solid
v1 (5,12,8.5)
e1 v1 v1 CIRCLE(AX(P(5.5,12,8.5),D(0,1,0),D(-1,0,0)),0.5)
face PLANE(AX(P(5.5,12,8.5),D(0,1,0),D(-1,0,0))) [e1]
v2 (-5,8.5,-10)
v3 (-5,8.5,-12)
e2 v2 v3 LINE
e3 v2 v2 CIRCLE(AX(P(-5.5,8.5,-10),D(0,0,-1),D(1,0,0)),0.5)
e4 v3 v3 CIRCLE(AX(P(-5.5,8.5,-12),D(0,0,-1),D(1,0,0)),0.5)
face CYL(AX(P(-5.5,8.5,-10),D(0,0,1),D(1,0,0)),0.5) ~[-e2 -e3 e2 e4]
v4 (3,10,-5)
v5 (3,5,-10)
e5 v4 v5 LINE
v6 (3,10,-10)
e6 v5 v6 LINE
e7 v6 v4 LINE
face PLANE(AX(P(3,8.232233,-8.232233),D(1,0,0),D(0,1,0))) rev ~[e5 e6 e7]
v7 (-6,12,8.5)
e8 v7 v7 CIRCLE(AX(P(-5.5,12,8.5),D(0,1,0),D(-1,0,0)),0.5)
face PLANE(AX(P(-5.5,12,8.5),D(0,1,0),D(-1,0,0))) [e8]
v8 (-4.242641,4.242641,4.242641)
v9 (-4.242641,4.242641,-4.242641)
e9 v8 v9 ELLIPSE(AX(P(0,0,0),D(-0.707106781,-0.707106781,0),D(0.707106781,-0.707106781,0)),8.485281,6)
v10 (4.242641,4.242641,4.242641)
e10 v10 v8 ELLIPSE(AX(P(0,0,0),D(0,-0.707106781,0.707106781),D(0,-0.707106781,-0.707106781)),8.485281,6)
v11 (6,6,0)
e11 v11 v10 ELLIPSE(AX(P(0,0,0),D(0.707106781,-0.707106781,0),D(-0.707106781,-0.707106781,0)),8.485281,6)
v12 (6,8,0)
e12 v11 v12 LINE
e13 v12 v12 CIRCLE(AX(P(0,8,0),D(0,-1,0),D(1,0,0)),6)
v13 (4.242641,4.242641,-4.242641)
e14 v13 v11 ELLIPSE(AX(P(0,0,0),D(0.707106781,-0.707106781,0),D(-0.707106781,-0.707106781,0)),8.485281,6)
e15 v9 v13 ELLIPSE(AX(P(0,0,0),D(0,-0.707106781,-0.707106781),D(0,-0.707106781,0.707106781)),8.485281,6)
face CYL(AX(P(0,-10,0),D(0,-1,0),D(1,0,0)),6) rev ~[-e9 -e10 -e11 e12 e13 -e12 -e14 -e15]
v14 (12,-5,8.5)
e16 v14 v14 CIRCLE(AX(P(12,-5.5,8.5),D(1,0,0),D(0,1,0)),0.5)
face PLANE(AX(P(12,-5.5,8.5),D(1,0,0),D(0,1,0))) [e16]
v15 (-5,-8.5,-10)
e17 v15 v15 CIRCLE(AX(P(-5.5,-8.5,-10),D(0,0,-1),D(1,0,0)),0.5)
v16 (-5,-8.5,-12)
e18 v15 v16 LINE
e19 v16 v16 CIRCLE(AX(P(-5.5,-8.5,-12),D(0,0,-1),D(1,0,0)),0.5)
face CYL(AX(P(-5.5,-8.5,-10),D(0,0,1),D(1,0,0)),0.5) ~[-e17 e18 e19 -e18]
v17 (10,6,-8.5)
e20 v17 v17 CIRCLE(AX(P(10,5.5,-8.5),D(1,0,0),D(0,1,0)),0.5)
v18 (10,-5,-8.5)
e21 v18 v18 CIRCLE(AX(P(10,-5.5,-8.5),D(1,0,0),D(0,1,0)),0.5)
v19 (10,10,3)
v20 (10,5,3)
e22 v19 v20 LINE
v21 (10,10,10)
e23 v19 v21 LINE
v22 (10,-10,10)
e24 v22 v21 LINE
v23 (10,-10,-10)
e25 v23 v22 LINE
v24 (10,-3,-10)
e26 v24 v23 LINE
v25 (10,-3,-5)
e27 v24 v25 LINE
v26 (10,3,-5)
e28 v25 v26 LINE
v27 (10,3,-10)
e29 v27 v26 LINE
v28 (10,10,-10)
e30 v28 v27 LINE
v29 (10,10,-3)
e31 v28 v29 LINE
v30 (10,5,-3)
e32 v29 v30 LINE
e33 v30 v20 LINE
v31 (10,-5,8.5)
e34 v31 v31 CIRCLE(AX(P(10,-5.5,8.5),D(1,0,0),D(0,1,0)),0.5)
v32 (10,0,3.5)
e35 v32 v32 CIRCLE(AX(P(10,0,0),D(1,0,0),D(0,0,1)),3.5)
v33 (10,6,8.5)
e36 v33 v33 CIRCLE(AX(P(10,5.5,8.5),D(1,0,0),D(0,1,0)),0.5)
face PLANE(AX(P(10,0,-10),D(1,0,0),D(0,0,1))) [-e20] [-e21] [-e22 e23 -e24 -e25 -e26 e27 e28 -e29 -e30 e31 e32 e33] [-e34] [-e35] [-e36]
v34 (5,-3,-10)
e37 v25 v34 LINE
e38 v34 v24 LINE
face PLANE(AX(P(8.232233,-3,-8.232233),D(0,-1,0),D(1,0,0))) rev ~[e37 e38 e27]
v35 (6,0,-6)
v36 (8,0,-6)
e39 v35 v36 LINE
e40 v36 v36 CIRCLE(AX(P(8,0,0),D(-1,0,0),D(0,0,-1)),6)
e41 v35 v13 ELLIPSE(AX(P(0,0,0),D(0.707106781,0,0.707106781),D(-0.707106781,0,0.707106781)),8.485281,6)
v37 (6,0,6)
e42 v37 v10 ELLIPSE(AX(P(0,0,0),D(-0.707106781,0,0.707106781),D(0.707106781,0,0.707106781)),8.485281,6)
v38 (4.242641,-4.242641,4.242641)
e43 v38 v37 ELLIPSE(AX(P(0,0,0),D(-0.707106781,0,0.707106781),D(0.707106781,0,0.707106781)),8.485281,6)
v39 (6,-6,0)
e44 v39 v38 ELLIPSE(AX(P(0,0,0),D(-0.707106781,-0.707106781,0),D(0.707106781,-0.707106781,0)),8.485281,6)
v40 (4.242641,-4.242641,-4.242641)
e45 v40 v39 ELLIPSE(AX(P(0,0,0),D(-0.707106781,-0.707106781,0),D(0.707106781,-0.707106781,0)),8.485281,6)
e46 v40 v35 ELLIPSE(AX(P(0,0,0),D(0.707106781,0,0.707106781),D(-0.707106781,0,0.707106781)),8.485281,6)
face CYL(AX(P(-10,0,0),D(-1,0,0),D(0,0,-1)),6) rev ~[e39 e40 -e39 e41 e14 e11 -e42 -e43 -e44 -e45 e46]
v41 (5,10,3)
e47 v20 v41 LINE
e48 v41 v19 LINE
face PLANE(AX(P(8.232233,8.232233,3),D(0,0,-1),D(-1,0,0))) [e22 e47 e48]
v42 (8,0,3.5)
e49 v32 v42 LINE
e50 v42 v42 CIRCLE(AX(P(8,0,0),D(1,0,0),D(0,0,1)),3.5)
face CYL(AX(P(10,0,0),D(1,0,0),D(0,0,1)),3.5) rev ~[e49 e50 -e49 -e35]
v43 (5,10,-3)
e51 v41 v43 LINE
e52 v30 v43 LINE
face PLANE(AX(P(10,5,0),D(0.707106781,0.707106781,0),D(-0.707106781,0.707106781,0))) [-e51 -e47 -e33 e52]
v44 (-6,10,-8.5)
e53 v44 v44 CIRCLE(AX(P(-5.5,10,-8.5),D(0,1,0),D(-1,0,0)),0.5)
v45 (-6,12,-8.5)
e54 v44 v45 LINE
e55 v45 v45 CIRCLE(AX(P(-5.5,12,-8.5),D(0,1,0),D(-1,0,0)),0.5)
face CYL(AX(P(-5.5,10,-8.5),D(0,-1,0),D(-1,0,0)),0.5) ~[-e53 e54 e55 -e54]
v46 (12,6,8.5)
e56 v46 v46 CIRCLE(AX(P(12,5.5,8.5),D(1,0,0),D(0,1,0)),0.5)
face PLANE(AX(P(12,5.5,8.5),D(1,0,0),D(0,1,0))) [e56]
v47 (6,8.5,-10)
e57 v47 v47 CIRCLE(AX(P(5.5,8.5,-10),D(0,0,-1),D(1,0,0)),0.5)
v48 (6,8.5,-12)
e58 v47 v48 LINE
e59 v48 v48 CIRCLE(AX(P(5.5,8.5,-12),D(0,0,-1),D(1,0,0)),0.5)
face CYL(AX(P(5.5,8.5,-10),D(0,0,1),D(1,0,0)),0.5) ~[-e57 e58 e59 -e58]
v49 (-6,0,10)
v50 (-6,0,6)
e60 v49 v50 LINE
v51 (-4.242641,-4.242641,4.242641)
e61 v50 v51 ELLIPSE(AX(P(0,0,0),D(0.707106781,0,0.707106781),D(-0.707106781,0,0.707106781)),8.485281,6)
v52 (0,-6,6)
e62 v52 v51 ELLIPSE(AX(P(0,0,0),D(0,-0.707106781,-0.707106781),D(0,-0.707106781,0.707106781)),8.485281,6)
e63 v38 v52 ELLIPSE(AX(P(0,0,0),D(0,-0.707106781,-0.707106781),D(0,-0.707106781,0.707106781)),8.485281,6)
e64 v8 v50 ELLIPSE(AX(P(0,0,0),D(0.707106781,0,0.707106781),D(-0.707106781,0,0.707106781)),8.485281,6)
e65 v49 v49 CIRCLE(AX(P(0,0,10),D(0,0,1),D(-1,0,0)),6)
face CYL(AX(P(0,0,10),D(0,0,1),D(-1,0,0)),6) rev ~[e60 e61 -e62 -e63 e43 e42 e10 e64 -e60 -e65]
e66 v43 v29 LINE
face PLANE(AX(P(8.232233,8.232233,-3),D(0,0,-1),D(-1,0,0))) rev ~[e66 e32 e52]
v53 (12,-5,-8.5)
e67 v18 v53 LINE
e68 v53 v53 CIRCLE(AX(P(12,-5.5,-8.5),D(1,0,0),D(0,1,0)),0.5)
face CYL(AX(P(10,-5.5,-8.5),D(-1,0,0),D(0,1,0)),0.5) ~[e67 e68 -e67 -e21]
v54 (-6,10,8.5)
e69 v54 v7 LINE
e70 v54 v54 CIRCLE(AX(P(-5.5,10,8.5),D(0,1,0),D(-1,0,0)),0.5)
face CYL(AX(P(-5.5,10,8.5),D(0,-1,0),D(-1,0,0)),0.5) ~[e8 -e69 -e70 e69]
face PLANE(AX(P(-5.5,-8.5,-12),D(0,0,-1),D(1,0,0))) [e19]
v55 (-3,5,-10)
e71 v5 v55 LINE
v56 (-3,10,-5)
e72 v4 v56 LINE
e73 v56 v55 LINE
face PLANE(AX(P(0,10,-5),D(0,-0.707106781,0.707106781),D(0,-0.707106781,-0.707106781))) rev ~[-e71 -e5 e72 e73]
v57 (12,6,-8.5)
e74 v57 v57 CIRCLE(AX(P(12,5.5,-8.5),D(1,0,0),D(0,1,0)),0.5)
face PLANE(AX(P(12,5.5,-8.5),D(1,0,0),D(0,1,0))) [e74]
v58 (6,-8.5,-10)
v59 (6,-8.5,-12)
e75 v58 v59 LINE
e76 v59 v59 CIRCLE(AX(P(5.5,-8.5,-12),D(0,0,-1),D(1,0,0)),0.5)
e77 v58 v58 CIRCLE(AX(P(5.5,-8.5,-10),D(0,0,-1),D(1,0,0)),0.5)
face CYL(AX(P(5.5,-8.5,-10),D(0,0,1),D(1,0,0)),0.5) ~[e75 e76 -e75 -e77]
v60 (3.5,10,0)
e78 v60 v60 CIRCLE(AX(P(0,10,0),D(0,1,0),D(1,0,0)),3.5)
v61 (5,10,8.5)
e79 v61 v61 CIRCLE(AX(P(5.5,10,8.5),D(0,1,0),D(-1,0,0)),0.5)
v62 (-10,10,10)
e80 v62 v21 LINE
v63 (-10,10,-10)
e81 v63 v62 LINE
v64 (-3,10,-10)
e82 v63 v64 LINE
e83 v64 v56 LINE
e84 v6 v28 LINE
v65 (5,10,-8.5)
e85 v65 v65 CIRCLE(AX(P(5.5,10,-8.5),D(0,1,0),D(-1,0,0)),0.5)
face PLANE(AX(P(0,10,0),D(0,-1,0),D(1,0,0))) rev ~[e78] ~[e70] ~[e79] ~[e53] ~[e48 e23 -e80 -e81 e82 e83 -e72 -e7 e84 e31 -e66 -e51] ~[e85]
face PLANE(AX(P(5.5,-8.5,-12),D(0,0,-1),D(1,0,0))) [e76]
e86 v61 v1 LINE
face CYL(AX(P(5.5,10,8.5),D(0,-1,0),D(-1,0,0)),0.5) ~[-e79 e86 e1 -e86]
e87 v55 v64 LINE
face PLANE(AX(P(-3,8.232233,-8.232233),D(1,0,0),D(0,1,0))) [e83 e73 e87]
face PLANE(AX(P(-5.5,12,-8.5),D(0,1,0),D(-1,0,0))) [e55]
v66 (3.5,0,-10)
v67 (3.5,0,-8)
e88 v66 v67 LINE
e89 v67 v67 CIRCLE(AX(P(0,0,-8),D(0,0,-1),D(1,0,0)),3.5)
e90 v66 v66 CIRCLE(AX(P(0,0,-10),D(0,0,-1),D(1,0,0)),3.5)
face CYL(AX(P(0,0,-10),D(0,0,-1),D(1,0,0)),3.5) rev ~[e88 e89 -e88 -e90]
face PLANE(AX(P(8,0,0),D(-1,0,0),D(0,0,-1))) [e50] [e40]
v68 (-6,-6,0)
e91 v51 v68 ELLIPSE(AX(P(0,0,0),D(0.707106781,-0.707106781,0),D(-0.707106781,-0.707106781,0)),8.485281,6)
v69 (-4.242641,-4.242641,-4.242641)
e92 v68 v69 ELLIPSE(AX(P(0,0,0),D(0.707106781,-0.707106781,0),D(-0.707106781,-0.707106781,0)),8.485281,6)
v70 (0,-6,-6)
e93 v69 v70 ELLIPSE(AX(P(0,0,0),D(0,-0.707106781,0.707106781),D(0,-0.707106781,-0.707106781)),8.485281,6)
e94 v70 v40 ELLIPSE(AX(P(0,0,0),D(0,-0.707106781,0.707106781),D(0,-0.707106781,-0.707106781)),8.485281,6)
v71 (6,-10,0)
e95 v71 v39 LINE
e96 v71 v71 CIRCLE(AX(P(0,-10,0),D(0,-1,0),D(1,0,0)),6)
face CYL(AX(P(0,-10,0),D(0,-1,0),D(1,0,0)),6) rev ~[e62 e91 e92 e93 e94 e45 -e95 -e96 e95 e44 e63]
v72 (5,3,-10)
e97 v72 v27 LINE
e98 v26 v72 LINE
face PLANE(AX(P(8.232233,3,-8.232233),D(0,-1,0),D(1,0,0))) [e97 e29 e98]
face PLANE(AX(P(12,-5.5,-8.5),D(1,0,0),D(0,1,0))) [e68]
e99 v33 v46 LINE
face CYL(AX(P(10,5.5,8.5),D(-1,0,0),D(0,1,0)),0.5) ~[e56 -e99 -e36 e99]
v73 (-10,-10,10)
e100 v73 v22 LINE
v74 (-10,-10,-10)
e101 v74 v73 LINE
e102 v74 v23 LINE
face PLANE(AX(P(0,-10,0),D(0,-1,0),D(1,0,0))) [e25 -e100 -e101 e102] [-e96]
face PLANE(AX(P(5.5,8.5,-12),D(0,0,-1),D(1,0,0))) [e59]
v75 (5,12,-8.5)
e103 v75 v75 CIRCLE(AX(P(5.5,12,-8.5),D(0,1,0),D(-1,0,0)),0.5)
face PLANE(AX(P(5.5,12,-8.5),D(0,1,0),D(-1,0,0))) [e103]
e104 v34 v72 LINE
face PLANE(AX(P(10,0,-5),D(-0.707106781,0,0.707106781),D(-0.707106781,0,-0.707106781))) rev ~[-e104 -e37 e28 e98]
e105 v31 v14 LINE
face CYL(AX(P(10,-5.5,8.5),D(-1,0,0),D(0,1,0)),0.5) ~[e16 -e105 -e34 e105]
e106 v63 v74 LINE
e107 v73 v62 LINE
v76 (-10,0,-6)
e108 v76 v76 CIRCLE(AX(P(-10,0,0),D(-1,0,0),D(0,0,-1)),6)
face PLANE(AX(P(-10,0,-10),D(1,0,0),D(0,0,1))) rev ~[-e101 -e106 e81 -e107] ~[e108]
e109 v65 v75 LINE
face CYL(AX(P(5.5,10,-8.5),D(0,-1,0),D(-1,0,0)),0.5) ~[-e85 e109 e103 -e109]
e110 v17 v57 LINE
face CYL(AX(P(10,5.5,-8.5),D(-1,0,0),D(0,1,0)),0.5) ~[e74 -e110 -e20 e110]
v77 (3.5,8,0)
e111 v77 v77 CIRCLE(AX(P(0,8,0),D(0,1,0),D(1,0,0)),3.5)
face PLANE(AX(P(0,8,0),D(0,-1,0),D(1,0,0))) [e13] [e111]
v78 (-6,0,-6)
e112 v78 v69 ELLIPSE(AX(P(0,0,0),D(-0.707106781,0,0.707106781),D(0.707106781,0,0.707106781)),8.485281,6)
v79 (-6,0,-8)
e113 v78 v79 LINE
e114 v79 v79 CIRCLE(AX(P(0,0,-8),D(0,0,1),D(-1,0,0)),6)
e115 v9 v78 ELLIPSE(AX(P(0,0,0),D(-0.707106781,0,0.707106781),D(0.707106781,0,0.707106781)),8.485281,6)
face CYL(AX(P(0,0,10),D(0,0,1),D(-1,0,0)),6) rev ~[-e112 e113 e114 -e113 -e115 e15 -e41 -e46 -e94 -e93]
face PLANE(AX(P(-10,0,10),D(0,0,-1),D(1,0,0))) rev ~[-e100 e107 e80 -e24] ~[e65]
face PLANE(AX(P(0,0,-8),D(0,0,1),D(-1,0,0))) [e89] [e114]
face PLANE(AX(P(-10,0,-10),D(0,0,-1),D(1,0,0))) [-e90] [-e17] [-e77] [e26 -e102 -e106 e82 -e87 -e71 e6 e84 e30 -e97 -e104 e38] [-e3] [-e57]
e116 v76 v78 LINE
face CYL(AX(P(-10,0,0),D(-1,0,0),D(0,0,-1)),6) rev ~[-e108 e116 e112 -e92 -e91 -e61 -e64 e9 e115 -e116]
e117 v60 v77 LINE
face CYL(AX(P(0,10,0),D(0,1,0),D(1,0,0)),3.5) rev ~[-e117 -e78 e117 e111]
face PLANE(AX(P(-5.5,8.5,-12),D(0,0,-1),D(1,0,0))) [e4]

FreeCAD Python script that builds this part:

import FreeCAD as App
import Part
import Sketcher
Q = App.Units.Quantity


def add_polygon(sketch, points):
    """Adds a closed chain of lines whose ends are joined by coincident constraints."""
    first, n = sketch.GeometryCount, len(points)
    for a, b in zip(points, points[1:] + points[:1]):
        sketch.addGeometry(Part.LineSegment(App.Vector(*a, 0), App.Vector(*b, 0)), False)
    for i in range(n):
        sketch.addConstraint(Sketcher.Constraint("Coincident", first + i, 2, first + (i + 1) % n, 1))

doc = App.newDocument("Part")
body = doc.addObject("PartDesign::Body", "Body")

sketch1 = body.newObject("Sketcher::SketchObject", "Sketch")
sketch1.AttachmentSupport = (doc.getObject("YZ_Plane"), [""])
sketch1.MapMode = "FlatFace"
add_polygon(sketch1, [(5, -10), (10, -10), (10, -5)])
sketch1.addConstraint(Sketcher.Constraint("Horizontal", 0))
sketch1.addConstraint(Sketcher.Constraint("Vertical", 1))
sketch1.addConstraint(Sketcher.Constraint("Equal", 0, 1))
sketch1.addConstraint(Sketcher.Constraint("DistanceX", 0, 1, 0, 2, Q("5 mm")))
sketch1.addConstraint(Sketcher.Constraint("DistanceX", -1, 1, 0, 2, Q("10 mm")))
sketch1.addConstraint(Sketcher.Constraint("DistanceY", 0, 2, -1, 1, Q("10 mm")))
pad1 = body.newObject("PartDesign::Pad", "Pad")
pad1.Profile = sketch1
pad1.Length = 6
pad1.Midplane = True
body2 = doc.addObject("PartDesign::Body", "Body001")

sketch2 = body2.newObject("Sketcher::SketchObject", "Sketch001")
sketch2.AttachmentSupport = (doc.getObject("XZ_Plane001"), [""])
sketch2.MapMode = "FlatFace"
add_polygon(sketch2, [(5, -10), (10, -10), (10, -5)])
sketch2.addConstraint(Sketcher.Constraint("Horizontal", 0))
sketch2.addConstraint(Sketcher.Constraint("Vertical", 1))
sketch2.addConstraint(Sketcher.Constraint("Equal", 0, 1))
sketch2.addConstraint(Sketcher.Constraint("DistanceX", 0, 1, 0, 2, Q("5 mm")))
sketch2.addConstraint(Sketcher.Constraint("DistanceX", -1, 1, 0, 2, Q("10 mm")))
sketch2.addConstraint(Sketcher.Constraint("DistanceY", 0, 2, -1, 1, Q("10 mm")))
pad2 = body2.newObject("PartDesign::Pad", "Pad001")
pad2.Profile = sketch2
pad2.Length = 6
pad2.Midplane = True
body3 = doc.addObject("PartDesign::Body", "Body002")

sketch3 = body3.newObject("Sketcher::SketchObject", "Sketch002")
sketch3.AttachmentSupport = (doc.getObject("XY_Plane002"), [""])
sketch3.MapMode = "FlatFace"
add_polygon(sketch3, [(5, 10), (10, 5), (10, 10)])
sketch3.addConstraint(Sketcher.Constraint("Vertical", 1))
sketch3.addConstraint(Sketcher.Constraint("Horizontal", 2))
sketch3.addConstraint(Sketcher.Constraint("Equal", 2, 1))
sketch3.addConstraint(Sketcher.Constraint("DistanceX", 2, 2, 2, 1, Q("5 mm")))
sketch3.addConstraint(Sketcher.Constraint("DistanceX", -1, 1, 0, 2, Q("10 mm")))
sketch3.addConstraint(Sketcher.Constraint("DistanceY", -1, 1, 0, 2, Q("5 mm")))
pad3 = body3.newObject("PartDesign::Pad", "Pad002")
pad3.Profile = sketch3
pad3.Length = 6
pad3.Midplane = True
body4 = doc.addObject("PartDesign::Body", "Body003")

sketch4 = body4.newObject("Sketcher::SketchObject", "Sketch003")
sketch4.AttachmentSupport = (doc.getObject("XZ_Plane003"), [""])
sketch4.MapMode = "FlatFace"
add_polygon(sketch4, [(-10, 10), (-10, -10), (10, -10), (10, 10)])
sketch4.addConstraint(Sketcher.Constraint("Vertical", 0))
sketch4.addConstraint(Sketcher.Constraint("Horizontal", 1))
sketch4.addConstraint(Sketcher.Constraint("Vertical", 2))
sketch4.addConstraint(Sketcher.Constraint("Horizontal", 3))
sketch4.addConstraint(Sketcher.Constraint("Symmetric", 0, 2, 2, 2, -1, 1))
sketch4.addConstraint(Sketcher.Constraint("Equal", 3, 0))
sketch4.addConstraint(Sketcher.Constraint("DistanceX", 1, 1, 1, 2, Q("20 mm")))
pad4 = body4.newObject("PartDesign::Pad", "Pad003")
pad4.Profile = sketch4
pad4.Length = 20
pad4.Midplane = True

sketch5 = body4.newObject("Sketcher::SketchObject", "Sketch004")
sketch5.AttachmentSupport = (doc.getObject("XZ_Plane003"), [""])
sketch5.MapMode = "FlatFace"
sketch5.AttachmentOffset = App.Placement(App.Vector(0, 0, 10), App.Rotation())
sketch5.addGeometry(Part.Circle(App.Vector(0, 0, 0), App.Vector(0, 0, 1), 6), False)
sketch5.addConstraint(Sketcher.Constraint("Coincident", 0, 3, -1, 1))
sketch5.addConstraint(Sketcher.Constraint("Diameter", 0, Q("12 mm")))
pocket1 = body4.newObject("PartDesign::Pocket", "Pocket")
pocket1.Profile = sketch5
pocket1.Length = 18

sketch6 = body4.newObject("Sketcher::SketchObject", "Sketch005")
sketch6.AttachmentSupport = (doc.getObject("XY_Plane003"), [""])
sketch6.MapMode = "FlatFace"
sketch6.AttachmentOffset = App.Placement(App.Vector(0, 0, 10), App.Rotation())
sketch6.addGeometry(Part.Circle(App.Vector(0, 0, 0), App.Vector(0, 0, 1), 6), False)
sketch6.addConstraint(Sketcher.Constraint("Coincident", 0, 3, -1, 1))
sketch6.addConstraint(Sketcher.Constraint("Diameter", 0, Q("12 mm")))
pocket2 = body4.newObject("PartDesign::Pocket", "Pocket001")
pocket2.Profile = sketch6
pocket2.Length = 18

sketch7 = body4.newObject("Sketcher::SketchObject", "Sketch006")
sketch7.AttachmentSupport = (doc.getObject("YZ_Plane003"), [""])
sketch7.MapMode = "FlatFace"
sketch7.AttachmentOffset = App.Placement(App.Vector(0, 0, -10), App.Rotation())
sketch7.addGeometry(Part.Circle(App.Vector(0, 0, 0), App.Vector(0, 0, 1), 6), False)
sketch7.addConstraint(Sketcher.Constraint("Coincident", 0, 3, -1, 1))
sketch7.addConstraint(Sketcher.Constraint("Diameter", 0, Q("12 mm")))
pocket3 = body4.newObject("PartDesign::Pocket", "Pocket002")
pocket3.Profile = sketch7
pocket3.Length = 18
pocket3.Reversed = True

sketch8 = body4.newObject("Sketcher::SketchObject", "Sketch007")
sketch8.AttachmentSupport = (doc.getObject("XY_Plane003"), [""])
sketch8.MapMode = "FlatFace"
sketch8.AttachmentOffset = App.Placement(App.Vector(0, 0, -10), App.Rotation())
sketch8.addGeometry(Part.Circle(App.Vector(0, 0, 0), App.Vector(0, 0, 1), 3.5), False)
sketch8.addConstraint(Sketcher.Constraint("Coincident", 0, 3, -1, 1))
sketch8.addConstraint(Sketcher.Constraint("Diameter", 0, Q("7 mm")))
pocket4 = body4.newObject("PartDesign::Pocket", "Pocket003")
pocket4.Profile = sketch8
pocket4.Length = 5
pocket4.Reversed = True

sketch9 = body4.newObject("Sketcher::SketchObject", "Sketch008")
sketch9.AttachmentSupport = (doc.getObject("XZ_Plane003"), [""])
sketch9.MapMode = "FlatFace"
sketch9.AttachmentOffset = App.Placement(App.Vector(0, 0, -10), App.Rotation())
sketch9.addGeometry(Part.Circle(App.Vector(0, 0, 0), App.Vector(0, 0, 1), 3.5), False)
sketch9.addConstraint(Sketcher.Constraint("Coincident", 0, 3, -1, 1))
sketch9.addConstraint(Sketcher.Constraint("Diameter", 0, Q("7 mm")))
pocket5 = body4.newObject("PartDesign::Pocket", "Pocket004")
pocket5.Profile = sketch9
pocket5.Length = 5
pocket5.Reversed = True

sketch10 = body4.newObject("Sketcher::SketchObject", "Sketch009")
sketch10.AttachmentSupport = (doc.getObject("YZ_Plane003"), [""])
sketch10.MapMode = "FlatFace"
sketch10.AttachmentOffset = App.Placement(App.Vector(0, 0, 10), App.Rotation())
sketch10.addGeometry(Part.Circle(App.Vector(0, 0, 0), App.Vector(0, 0, 1), 3.5), False)
sketch10.addConstraint(Sketcher.Constraint("Coincident", 0, 3, -1, 1))
sketch10.addConstraint(Sketcher.Constraint("Diameter", 0, Q("7 mm")))
pocket6 = body4.newObject("PartDesign::Pocket", "Pocket005")
pocket6.Profile = sketch10
pocket6.Length = 5
doc.recompute()

boolean = body4.newObject("PartDesign::Boolean", "Boolean")
boolean.Type = "Cut"
boolean.addObjects([body3])
doc.recompute()

boolean2 = body4.newObject("PartDesign::Boolean", "Boolean001")
boolean2.Type = "Cut"
boolean2.addObjects([body2])
doc.recompute()

boolean3 = body4.newObject("PartDesign::Boolean", "Boolean002")
boolean3.Type = "Cut"
boolean3.addObjects([body])

sketch11 = body4.newObject("Sketcher::SketchObject", "Sketch010")
sketch11.AttachmentSupport = (doc.getObject("YZ_Plane003"), [""])
sketch11.MapMode = "FlatFace"
sketch11.AttachmentOffset = App.Placement(App.Vector(0, 0, 10), App.Rotation())
sketch11.addGeometry(Part.Circle(App.Vector(-5.5, 8.5, 0), App.Vector(0, 0, 1), 0.5), False)
sketch11.addGeometry(Part.Circle(App.Vector(5.5, 8.5, 0), App.Vector(0, 0, 1), 0.5), False)
sketch11.addGeometry(Part.Circle(App.Vector(-5.5, -8.5, 0), App.Vector(0, 0, 1), 0.5), False)
sketch11.addGeometry(Part.Circle(App.Vector(5.5, -8.5, 0), App.Vector(0, 0, 1), 0.5), False)
sketch11.addConstraint(Sketcher.Constraint("Equal", 0, 1))
sketch11.addConstraint(Sketcher.Constraint("Equal", 1, 2))
sketch11.addConstraint(Sketcher.Constraint("Equal", 2, 3))
sketch11.addConstraint(Sketcher.Constraint("Symmetric", 1, 3, 2, 3, -1, 1))
sketch11.addConstraint(Sketcher.Constraint("Symmetric", 0, 3, 3, 3, -1, 1))
sketch11.addConstraint(Sketcher.Constraint("Symmetric", 0, 3, 1, 3, -2))
sketch11.addConstraint(Sketcher.Constraint("Diameter", 0, Q("1 mm")))
sketch11.addConstraint(Sketcher.Constraint("DistanceX", 0, 3, 1, 3, Q("11 mm")))
sketch11.addConstraint(Sketcher.Constraint("DistanceY", 2, 3, 0, 3, Q("17 mm")))
pad5 = body4.newObject("PartDesign::Pad", "Pad004")
pad5.Profile = sketch11
pad5.Length = 2

sketch12 = body4.newObject("Sketcher::SketchObject", "Sketch011")
sketch12.AttachmentSupport = (doc.getObject("XZ_Plane003"), [""])
sketch12.MapMode = "FlatFace"
sketch12.AttachmentOffset = App.Placement(App.Vector(0, 0, -10), App.Rotation())
sketch12.addGeometry(Part.Circle(App.Vector(5.5, 8.5, 0), App.Vector(0, 0, 1), 0.5), False)
sketch12.addGeometry(Part.Circle(App.Vector(-5.5, 8.5, 0), App.Vector(0, 0, 1), 0.5), False)
sketch12.addGeometry(Part.Circle(App.Vector(-5.5, -8.5, 0), App.Vector(0, 0, 1), 0.5), False)
sketch12.addGeometry(Part.Circle(App.Vector(5.5, -8.5, 0), App.Vector(0, 0, 1), 0.5), False)
sketch12.addConstraint(Sketcher.Constraint("Equal", 0, 1))
sketch12.addConstraint(Sketcher.Constraint("Equal", 1, 2))
sketch12.addConstraint(Sketcher.Constraint("Equal", 2, 3))
sketch12.addConstraint(Sketcher.Constraint("Symmetric", 0, 3, 2, 3, -1, 1))
sketch12.addConstraint(Sketcher.Constraint("Symmetric", 1, 3, 3, 3, -1, 1))
sketch12.addConstraint(Sketcher.Constraint("Symmetric", 0, 3, 1, 3, -2))
sketch12.addConstraint(Sketcher.Constraint("Diameter", 0, Q("1 mm")))
sketch12.addConstraint(Sketcher.Constraint("DistanceX", 1, 3, 0, 3, Q("11 mm")))
sketch12.addConstraint(Sketcher.Constraint("DistanceY", 2, 3, 1, 3, Q("17 mm")))
pad6 = body4.newObject("PartDesign::Pad", "Pad005")
pad6.Profile = sketch12
pad6.Length = 2
pad6.Reversed = True

sketch13 = body4.newObject("Sketcher::SketchObject", "Sketch012")
sketch13.AttachmentSupport = (doc.getObject("XY_Plane003"), [""])
sketch13.MapMode = "FlatFace"
sketch13.AttachmentOffset = App.Placement(App.Vector(0, 0, -10), App.Rotation())
sketch13.addGeometry(Part.Circle(App.Vector(-5.5, -8.5, 0), App.Vector(0, 0, 1), 0.5), False)
sketch13.addGeometry(Part.Circle(App.Vector(5.5, -8.5, 0), App.Vector(0, 0, 1), 0.5), False)
sketch13.addGeometry(Part.Circle(App.Vector(-5.5, 8.5, 0), App.Vector(0, 0, 1), 0.5), False)
sketch13.addGeometry(Part.Circle(App.Vector(5.5, 8.5, 0), App.Vector(0, 0, 1), 0.5), False)
sketch13.addConstraint(Sketcher.Constraint("Equal", 0, 1))
sketch13.addConstraint(Sketcher.Constraint("Equal", 1, 2))
sketch13.addConstraint(Sketcher.Constraint("Equal", 2, 3))
sketch13.addConstraint(Sketcher.Constraint("Symmetric", 1, 3, 2, 3, -1, 1))
sketch13.addConstraint(Sketcher.Constraint("Symmetric", 0, 3, 3, 3, -1, 1))
sketch13.addConstraint(Sketcher.Constraint("Symmetric", 0, 3, 1, 3, -2))
sketch13.addConstraint(Sketcher.Constraint("Diameter", 0, Q("1 mm")))
sketch13.addConstraint(Sketcher.Constraint("DistanceX", 0, 3, 1, 3, Q("11 mm")))
sketch13.addConstraint(Sketcher.Constraint("DistanceY", 0, 3, 2, 3, Q("17 mm")))
pad7 = body4.newObject("PartDesign::Pad", "Pad006")
pad7.Profile = sketch13
pad7.Length = 2
pad7.Reversed = True

doc.recompute()
